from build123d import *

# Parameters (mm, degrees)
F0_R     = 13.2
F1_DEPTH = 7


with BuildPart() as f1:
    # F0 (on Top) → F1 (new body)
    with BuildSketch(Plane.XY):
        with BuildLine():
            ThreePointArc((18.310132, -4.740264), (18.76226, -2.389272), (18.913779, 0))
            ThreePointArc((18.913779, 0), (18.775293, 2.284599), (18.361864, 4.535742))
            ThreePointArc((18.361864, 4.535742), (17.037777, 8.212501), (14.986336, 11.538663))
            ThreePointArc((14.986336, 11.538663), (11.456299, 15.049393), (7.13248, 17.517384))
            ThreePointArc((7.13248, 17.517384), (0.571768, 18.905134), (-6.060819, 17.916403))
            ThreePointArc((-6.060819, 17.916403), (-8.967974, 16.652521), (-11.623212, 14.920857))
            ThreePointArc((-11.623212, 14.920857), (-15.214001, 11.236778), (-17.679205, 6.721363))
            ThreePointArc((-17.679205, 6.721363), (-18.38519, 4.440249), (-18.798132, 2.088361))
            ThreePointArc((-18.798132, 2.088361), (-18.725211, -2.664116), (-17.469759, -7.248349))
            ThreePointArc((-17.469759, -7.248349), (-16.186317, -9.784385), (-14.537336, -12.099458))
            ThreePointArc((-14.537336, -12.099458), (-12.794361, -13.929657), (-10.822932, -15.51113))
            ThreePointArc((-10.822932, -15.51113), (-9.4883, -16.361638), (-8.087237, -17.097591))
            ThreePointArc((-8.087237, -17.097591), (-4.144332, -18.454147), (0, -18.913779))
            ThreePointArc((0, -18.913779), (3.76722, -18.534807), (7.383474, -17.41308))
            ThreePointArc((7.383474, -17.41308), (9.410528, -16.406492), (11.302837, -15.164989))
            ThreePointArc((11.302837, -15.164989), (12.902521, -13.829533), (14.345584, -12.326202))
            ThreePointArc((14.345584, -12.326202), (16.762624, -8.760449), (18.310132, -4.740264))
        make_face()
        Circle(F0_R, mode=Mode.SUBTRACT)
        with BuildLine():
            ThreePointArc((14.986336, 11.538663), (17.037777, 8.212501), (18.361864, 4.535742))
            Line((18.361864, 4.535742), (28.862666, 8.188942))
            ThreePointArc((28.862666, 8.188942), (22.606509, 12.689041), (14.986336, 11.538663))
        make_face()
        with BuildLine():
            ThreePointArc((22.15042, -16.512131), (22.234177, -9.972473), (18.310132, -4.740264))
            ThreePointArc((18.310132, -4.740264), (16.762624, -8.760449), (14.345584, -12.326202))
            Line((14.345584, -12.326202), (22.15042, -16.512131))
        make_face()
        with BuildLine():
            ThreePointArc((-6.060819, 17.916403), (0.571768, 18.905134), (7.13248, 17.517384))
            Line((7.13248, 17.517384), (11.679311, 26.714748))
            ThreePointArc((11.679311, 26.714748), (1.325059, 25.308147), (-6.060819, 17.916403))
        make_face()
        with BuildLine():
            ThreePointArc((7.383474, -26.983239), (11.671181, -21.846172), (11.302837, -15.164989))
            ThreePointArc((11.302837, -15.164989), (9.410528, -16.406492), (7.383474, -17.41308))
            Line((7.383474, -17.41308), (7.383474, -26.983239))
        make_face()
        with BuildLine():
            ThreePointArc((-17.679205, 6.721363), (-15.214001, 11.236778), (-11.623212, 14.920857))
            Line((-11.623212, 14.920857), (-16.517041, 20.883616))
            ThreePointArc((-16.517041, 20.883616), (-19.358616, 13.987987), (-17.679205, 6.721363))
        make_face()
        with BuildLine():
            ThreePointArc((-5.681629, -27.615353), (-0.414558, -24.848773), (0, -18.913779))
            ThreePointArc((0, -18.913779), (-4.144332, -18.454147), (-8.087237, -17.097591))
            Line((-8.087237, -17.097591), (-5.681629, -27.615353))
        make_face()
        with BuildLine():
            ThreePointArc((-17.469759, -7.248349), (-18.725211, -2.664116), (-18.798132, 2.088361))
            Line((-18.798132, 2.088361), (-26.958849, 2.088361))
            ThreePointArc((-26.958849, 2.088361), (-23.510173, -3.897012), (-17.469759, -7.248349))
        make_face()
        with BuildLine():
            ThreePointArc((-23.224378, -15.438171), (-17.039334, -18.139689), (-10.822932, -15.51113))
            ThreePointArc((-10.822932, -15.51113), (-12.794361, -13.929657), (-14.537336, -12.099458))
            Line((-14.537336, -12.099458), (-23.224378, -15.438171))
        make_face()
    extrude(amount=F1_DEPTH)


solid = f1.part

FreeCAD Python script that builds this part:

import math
import FreeCAD as App
import Part
import Sketcher

V = App.Vector
Q = App.Units.Quantity

doc = App.newDocument("Part")
params = doc.addObject("Spreadsheet::Sheet", "Params")
for row, (alias, value) in enumerate([
    ("sketch1_diameter", "26.4 mm"),
    ("pad1_length", "7 mm"),
], start=1):
    params.set(f"A{row}", alias)
    params.set(f"B{row}", "=" + value)
    params.setAlias(f"B{row}", alias)

body = doc.addObject("PartDesign::Body", "Body")

sketch1 = doc.addObject("Sketcher::SketchObject", "Sketch")
body.addObject(sketch1)
sketch1.AttachmentSupport = (doc.XY_Plane, [""])
sketch1.MapMode = "FlatFace"
sketch1.addGeometry([
    Part.ArcOfCircle(Part.Circle(V(-0.00005, 0.000006, 0), V(0, 0, 1), 18.913829), math.radians(-14.514474), math.radians(-0.000019)),
    Part.ArcOfCircle(Part.Circle(V(-0.000002, -0.000004, 0), V(0, 0, 1), 18.913781), math.radians(0.000011), math.radians(13.875426)),
    Part.LineSegment(V(18.361864, 4.535742, 0), V(28.862666, 8.188942, 0)),
    Part.ArcOfCircle(Part.Circle(V(20.20896, 2.757118, 0), V(0, 0, 1), 10.217208), math.radians(32.115984), math.radians(120.741102)),
    Part.ArcOfCircle(Part.Circle(V(0.000002, 0.000003, 0), V(0, 0, 1), 18.913775), math.radians(37.59431), math.radians(67.845529)),
    Part.LineSegment(V(7.13248, 17.517384, 0), V(11.679311, 26.714748, 0)),
    Part.ArcOfCircle(Part.Circle(V(8.586787, 10.666301, 0), V(0, 0, 1), 16.343694), math.radians(79.09284), math.radians(153.666046)),
    Part.ArcOfCircle(Part.Circle(V(0.000012, -0.000023, 0), V(0, 0, 1), 18.913804), math.radians(108.689828), math.radians(127.918252)),
    Part.LineSegment(V(-11.623212, 14.920857, 0), V(-16.517041, 20.883616, 0)),
    Part.ArcOfCircle(Part.Circle(V(-7.137348, 12.985102, 0), V(0, 0, 1), 12.262348), math.radians(139.899716), math.radians(210.717846)),
    Part.ArcOfCircle(Part.Circle(V(-0.000027, 0.000006, 0), V(0, 0, 1), 18.913751), math.radians(159.18395), math.radians(173.660781)),
    Part.LineSegment(V(-18.798132, 2.088361, 0), V(-26.958849, 2.088361, 0)),
    Part.ArcOfCircle(Part.Circle(V(-14.453387, 5.307586, 0), V(0, 0, 1), 12.913171), math.radians(-165.56404), math.radians(-103.508452)),
    Part.ArcOfCircle(Part.Circle(V(-0.000032, -0.000017, 0), V(0, 0, 1), 18.913743), math.radians(-157.46604), math.radians(-140.229288)),
    Part.LineSegment(V(-14.537336, -12.099458, 0), V(-23.224378, -15.438171, 0)),
    Part.ArcOfCircle(Part.Circle(V(-16.989056, -9.593584, 0), V(0, 0, 1), 8.546253), math.radians(-136.852636), math.radians(-43.82151)),
    Part.ArcOfCircle(Part.Circle(V(-0.000072, -0.000127, 0), V(0, 0, 1), 18.913633), math.radians(-124.905552), math.radians(-115.314326)),
    Part.LineSegment(V(-8.087237, -17.097591, 0), V(-5.681629, -27.615353, 0)),
    Part.ArcOfCircle(Part.Circle(V(-5.528623, -21.509581, 0), V(0, 0, 1), 6.107688), math.radians(-91.435491), math.radians(25.151023)),
    Part.ArcOfCircle(Part.Circle(V(-0.000005, 0.000029, 0), V(0, 0, 1), 18.913808), math.radians(-89.999983), math.radians(-67.02216)),
    Part.LineSegment(V(7.383474, -17.41308, 0), V(7.383474, -26.983239, 0)),
    Part.ArcOfCircle(Part.Circle(V(3.007732, -18.973056, 0), V(0, 0, 1), 9.127439), math.radians(-61.353435), math.radians(24.658625)),
    Part.ArcOfCircle(Part.Circle(V(0.000018, -0.000015, 0), V(0, 0, 1), 18.913756), math.radians(-53.301952), math.radians(-40.670266)),
    Part.LineSegment(V(14.345584, -12.326202, 0), V(22.15042, -16.512131, 0)),
    Part.ArcOfCircle(Part.Circle(V(12.588034, -13.119295, 0), V(0, 0, 1), 10.146456), math.radians(-19.535225), math.radians(55.670561)),
    Part.Circle(V(0, 0, 0), V(0, 0, 1), 13.2),
], False)
sketch1.addConstraint([
    Sketcher.Constraint("Coincident", 0, 2, 1, 1),
    Sketcher.Constraint("Coincident", 1, 2, 2, 1),
    Sketcher.Constraint("Coincident", 2, 2, 3, 1),
    Sketcher.Constraint("Coincident", 3, 2, 4, 1),
    Sketcher.Constraint("Coincident", 4, 2, 5, 1),
    Sketcher.Constraint("Coincident", 5, 2, 6, 1),
    Sketcher.Constraint("Coincident", 6, 2, 7, 1),
    Sketcher.Constraint("Coincident", 7, 2, 8, 1),
    Sketcher.Constraint("Coincident", 8, 2, 9, 1),
    Sketcher.Constraint("Coincident", 9, 2, 10, 1),
    Sketcher.Constraint("Coincident", 10, 2, 11, 1),
    Sketcher.Constraint("Coincident", 11, 2, 12, 1),
    Sketcher.Constraint("Coincident", 12, 2, 13, 1),
    Sketcher.Constraint("Coincident", 13, 2, 14, 1),
    Sketcher.Constraint("Coincident", 14, 2, 15, 1),
    Sketcher.Constraint("Coincident", 15, 2, 16, 1),
    Sketcher.Constraint("Coincident", 16, 2, 17, 1),
    Sketcher.Constraint("Coincident", 17, 2, 18, 1),
    Sketcher.Constraint("Coincident", 18, 2, 19, 1),
    Sketcher.Constraint("Coincident", 19, 2, 20, 1),
    Sketcher.Constraint("Coincident", 20, 2, 21, 1),
    Sketcher.Constraint("Coincident", 21, 2, 22, 1),
    Sketcher.Constraint("Coincident", 22, 2, 23, 1),
    Sketcher.Constraint("Coincident", 23, 2, 24, 1),
    Sketcher.Constraint("Coincident", 24, 2, 0, 1),
    Sketcher.Constraint("Horizontal", 11),
    Sketcher.Constraint("Vertical", 20),
    Sketcher.Constraint("Coincident", 1, 3, -1, 1),
    Sketcher.Constraint("Coincident", 4, 3, -1, 1),
    Sketcher.Constraint("Coincident", 25, 3, -1, 1),
    Sketcher.Constraint("Coincident", 22, 3, 7, 3),
    Sketcher.Constraint("PointOnObject", 0, 2, -1),
    Sketcher.Constraint("PointOnObject", 18, 2, -2),
    Sketcher.Constraint("Diameter", 25, Q("26.4 mm")),
    Sketcher.Constraint("Radius", 0, Q("18.913829 mm")),
    Sketcher.Constraint("Radius", 1, Q("18.913781 mm")),
    Sketcher.Constraint("Radius", 3, Q("10.217208 mm")),
    Sketcher.Constraint("Radius", 10, Q("18.913751 mm")),
    Sketcher.Constraint("Radius", 12, Q("12.913171 mm")),
    Sketcher.Constraint("Radius", 18, Q("6.107688 mm")),
    Sketcher.Constraint("Radius", 19, Q("18.913808 mm")),
    Sketcher.Constraint("Radius", 21, Q("9.127439 mm")),
    Sketcher.Constraint("Radius", 4, Q("18.913775 mm")),
    Sketcher.Constraint("Radius", 6, Q("16.343694 mm")),
    Sketcher.Constraint("Radius", 7, Q("18.913804 mm")),
    Sketcher.Constraint("Radius", 9, Q("12.262348 mm")),
    Sketcher.Constraint("Radius", 13, Q("18.913743 mm")),
    Sketcher.Constraint("Radius", 15, Q("8.546253 mm")),
    Sketcher.Constraint("Radius", 16, Q("18.913633 mm")),
    Sketcher.Constraint("Radius", 22, Q("18.913756 mm")),
    Sketcher.Constraint("Radius", 24, Q("10.146456 mm")),
    Sketcher.Constraint("DistanceY", 10, 2, 9, 2, Q("4.633002 mm")),
    Sketcher.Constraint("DistanceY", 20, 2, 20, 1, Q("9.570159 mm")),
    Sketcher.Constraint("DistanceY", -1, 1, 6, 3, Q("10.666301 mm")),
    Sketcher.Constraint("DistanceY", -1, 1, 9, 3, Q("12.985102 mm")),
    Sketcher.Constraint("DistanceY", 22, 2, -1, 1, Q("12.326202 mm")),
    Sketcher.Constraint("DistanceY", 1, 2, 2, 2, Q("3.6532 mm")),
    Sketcher.Constraint("DistanceY", 9, 3, 6, 2, Q("4.931301 mm")),
    Sketcher.Constraint("DistanceX", 6, 2, 4, 2, Q("13.193299 mm")),
    Sketcher.Constraint("DistanceX", 13, 2, 16, 2, Q("6.450099 mm")),
    Sketcher.Constraint("DistanceY", 18, 2, 19, 2, Q("1.500699 mm")),
    Sketcher.Constraint("DistanceY", 18, 3, 19, 2, Q("4.096501 mm")),
    Sketcher.Constraint("DistanceX", 24, 3, 24, 2, Q("5.722098 mm")),
    Sketcher.Constraint("Distance", 5, Q("10.259882 mm")),
    Sketcher.Constraint("Distance", 14, Q("9.306541 mm")),
    Sketcher.Constraint("Distance", 17, Q("10.789359 mm")),
    Sketcher.Constraint("DistanceX", 11, 2, 11, 1, Q("8.160717 mm")),
    Sketcher.Constraint("DistanceX", -1, 1, 3, 3, Q("20.20896 mm")),
    Sketcher.Constraint("DistanceX", 9, 3, -1, 1, Q("7.137348 mm")),
    Sketcher.Constraint("DistanceY", 18, 3, -1, 1, Q("21.509581 mm")),
    Sketcher.Constraint("DistanceX", -1, 1, 21, 3, Q("3.007732 mm")),
    Sketcher.Constraint("DistanceY", -1, 1, 1, 2, Q("4.535742 mm")),
    Sketcher.Constraint("DistanceX", -1, 1, 4, 2, Q("7.13248 mm")),
    Sketcher.Constraint("DistanceX", 7, 2, -1, 1, Q("11.623212 mm")),
    Sketcher.Constraint("DistanceX", 8, 2, -1, 1, Q("16.517041 mm")),
    Sketcher.Constraint("DistanceY", -1, 1, 10, 2, Q("2.088361 mm")),
    Sketcher.Constraint("DistanceX", 11, 2, -1, 1, Q("26.958849 mm")),
    Sketcher.Constraint("DistanceX", 12, 2, -1, 1, Q("17.469759 mm")),
    Sketcher.Constraint("DistanceY", 12, 2, -1, 1, Q("7.248349 mm")),
    Sketcher.Constraint("DistanceY", 13, 2, -1, 1, Q("12.099458 mm")),
    Sketcher.Constraint("DistanceX", 14, 2, -1, 1, Q("23.224378 mm")),
    Sketcher.Constraint("DistanceY", 14, 2, -1, 1, Q("15.438171 mm")),
    Sketcher.Constraint("DistanceY", 15, 2, -1, 1, Q("15.51113 mm")),
    Sketcher.Constraint("DistanceY", 16, 2, -1, 1, Q("17.097591 mm")),
    Sketcher.Constraint("DistanceY", 21, 2, -1, 1, Q("15.164989 mm")),
    Sketcher.Constraint("DistanceX", -1, 1, 23, 2, Q("22.15042 mm")),
    Sketcher.Constraint("DistanceY", 23, 2, -1, 1, Q("16.512131 mm")),
    Sketcher.Constraint("DistanceY", 1, 3, 3, 3, Q("2.757121 mm")),
    Sketcher.Constraint("DistanceY", 0, 3, 3, 3, Q("2.757111 mm")),
    Sketcher.Constraint("DistanceX", 7, 3, 3, 3, Q("20.208948 mm")),
    Sketcher.Constraint("DistanceX", 15, 3, 12, 3, Q("2.535669 mm")),
])
sketch1.setExpression("Constraints[33]", "Params.sketch1_diameter")
pad1 = doc.addObject("PartDesign::Pad", "Pad")
body.addObject(pad1)
pad1.Profile = sketch1
pad1.setExpression("Length", "Params.pad1_length")

doc.recompute()
